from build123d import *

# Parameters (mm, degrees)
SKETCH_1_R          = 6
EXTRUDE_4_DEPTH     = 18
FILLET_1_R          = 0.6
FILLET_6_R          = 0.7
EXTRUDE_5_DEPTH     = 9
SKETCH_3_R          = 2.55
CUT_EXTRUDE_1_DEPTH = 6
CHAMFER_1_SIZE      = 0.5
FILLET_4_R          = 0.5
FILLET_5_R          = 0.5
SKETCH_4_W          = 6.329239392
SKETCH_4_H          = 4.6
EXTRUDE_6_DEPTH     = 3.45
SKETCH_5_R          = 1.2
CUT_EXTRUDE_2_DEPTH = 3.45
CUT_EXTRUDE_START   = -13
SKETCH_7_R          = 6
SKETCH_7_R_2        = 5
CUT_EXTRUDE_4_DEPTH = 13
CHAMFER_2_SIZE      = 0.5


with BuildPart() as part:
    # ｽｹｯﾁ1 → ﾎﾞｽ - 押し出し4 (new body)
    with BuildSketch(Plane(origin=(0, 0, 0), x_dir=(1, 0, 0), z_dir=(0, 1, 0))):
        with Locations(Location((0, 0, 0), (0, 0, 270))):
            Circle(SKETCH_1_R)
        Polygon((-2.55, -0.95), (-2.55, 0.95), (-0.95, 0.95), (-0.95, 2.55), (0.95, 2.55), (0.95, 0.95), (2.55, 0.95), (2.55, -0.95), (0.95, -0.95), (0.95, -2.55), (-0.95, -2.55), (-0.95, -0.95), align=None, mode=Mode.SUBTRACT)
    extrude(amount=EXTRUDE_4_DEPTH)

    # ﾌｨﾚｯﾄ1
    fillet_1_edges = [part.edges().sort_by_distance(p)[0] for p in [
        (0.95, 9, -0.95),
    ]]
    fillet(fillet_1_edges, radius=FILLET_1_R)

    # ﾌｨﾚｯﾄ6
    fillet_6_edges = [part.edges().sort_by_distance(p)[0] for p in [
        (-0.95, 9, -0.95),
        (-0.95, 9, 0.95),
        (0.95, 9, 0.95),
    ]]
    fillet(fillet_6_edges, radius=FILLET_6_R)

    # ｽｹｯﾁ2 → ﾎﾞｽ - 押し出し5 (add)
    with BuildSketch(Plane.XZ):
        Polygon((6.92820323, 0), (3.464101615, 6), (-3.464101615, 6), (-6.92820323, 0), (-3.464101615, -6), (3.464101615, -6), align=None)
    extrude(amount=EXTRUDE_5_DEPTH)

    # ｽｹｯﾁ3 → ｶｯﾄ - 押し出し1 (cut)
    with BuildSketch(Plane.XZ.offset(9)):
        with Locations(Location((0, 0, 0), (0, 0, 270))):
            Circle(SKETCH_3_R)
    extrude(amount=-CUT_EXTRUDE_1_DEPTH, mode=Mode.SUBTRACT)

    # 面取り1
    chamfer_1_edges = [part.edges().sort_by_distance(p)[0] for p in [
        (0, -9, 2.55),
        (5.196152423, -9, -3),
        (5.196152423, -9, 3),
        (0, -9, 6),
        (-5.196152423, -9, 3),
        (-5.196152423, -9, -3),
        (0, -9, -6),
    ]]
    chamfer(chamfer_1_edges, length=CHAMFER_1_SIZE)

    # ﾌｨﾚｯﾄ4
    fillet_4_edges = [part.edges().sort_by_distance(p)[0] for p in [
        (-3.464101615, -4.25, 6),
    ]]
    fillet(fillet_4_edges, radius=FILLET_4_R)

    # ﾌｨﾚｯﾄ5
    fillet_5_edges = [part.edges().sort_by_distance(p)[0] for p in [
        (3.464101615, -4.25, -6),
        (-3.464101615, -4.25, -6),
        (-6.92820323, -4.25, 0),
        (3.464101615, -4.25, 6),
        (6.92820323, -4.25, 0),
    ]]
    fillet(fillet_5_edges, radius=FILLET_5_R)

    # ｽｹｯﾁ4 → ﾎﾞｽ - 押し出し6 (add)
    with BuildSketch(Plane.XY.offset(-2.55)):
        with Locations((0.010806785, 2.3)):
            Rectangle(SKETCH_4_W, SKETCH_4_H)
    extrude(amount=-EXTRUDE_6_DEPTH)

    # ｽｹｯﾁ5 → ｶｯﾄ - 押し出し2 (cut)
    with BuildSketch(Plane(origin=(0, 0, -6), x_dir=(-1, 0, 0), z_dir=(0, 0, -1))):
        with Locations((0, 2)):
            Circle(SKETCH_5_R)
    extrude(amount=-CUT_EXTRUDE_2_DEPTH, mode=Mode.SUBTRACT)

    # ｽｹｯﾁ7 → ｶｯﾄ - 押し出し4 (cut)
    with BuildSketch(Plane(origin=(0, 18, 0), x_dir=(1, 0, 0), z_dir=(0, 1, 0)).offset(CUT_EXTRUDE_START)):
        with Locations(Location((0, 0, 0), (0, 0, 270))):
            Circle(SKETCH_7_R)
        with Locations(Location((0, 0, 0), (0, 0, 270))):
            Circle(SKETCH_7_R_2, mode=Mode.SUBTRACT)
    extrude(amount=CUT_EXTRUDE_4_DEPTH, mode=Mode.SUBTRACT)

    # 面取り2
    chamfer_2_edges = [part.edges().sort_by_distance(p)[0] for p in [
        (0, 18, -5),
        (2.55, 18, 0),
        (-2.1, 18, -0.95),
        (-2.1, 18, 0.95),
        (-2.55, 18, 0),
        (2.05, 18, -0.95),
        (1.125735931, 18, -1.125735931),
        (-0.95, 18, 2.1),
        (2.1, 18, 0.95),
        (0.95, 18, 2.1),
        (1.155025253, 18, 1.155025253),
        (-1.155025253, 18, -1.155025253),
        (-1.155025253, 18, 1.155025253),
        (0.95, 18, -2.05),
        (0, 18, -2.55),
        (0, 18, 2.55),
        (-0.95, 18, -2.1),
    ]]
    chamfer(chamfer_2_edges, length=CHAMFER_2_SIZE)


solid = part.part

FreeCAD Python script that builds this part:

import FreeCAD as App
import Part
import Sketcher
from FreeCAD import Vector
Q = App.Units.Quantity


def edges_at(feature, points):
    """Names of the edges that pass closest to the given points."""
    edges = feature.Shape.Edges
    near = lambda p: min(range(len(edges)), key=lambda i: edges[i].distToShape(Part.Vertex(*p))[0])
    return sorted({f"Edge{near(p) + 1}" for p in points})

doc = App.newDocument("Part")
body = doc.addObject("PartDesign::Body", "Body")

# Sketch on XZ plane
sketch1 = doc.addObject("Sketcher::SketchObject", "Sketch")
body.addObject(sketch1)
sketch1.AttachmentSupport = (doc.XZ_Plane, [""])
sketch1.MapMode = "FlatFace"
sketch1.addGeometry([
    Part.Circle(Vector(0, 0, 0), Vector(0, 0, 1), 6),  # 0
    Part.LineSegment(Vector(-0.9, 0.9, 0), Vector(-2.5, 0.9, 0)),  # 1
    Part.LineSegment(Vector(-2.5, 0.9, 0), Vector(-2.5, -0.9, 0)),  # 2
    Part.LineSegment(Vector(-2.5, -0.9, 0), Vector(-0.9, -0.9, 0)),  # 3
    Part.LineSegment(Vector(-0.9, -0.9, 0), Vector(-0.9, -2.5, 0)),  # 4
    Part.LineSegment(Vector(-0.9, -2.5, 0), Vector(0.9, -2.5, 0)),  # 5
    Part.LineSegment(Vector(0.9, -2.5, 0), Vector(0.9, -0.9, 0)),  # 6
    Part.LineSegment(Vector(0.9, -0.9, 0), Vector(2.5, -0.9, 0)),  # 7
    Part.LineSegment(Vector(2.5, -0.9, 0), Vector(2.5, 0.9, 0)),  # 8
    Part.LineSegment(Vector(2.5, 0.9, 0), Vector(0.9, 0.9, 0)),  # 9
    Part.LineSegment(Vector(0.9, 0.9, 0), Vector(0.9, 2.5, 0)),  # 10
    Part.LineSegment(Vector(0.9, 2.5, 0), Vector(-0.9, 2.5, 0)),  # 11
    Part.LineSegment(Vector(-0.9, 2.5, 0), Vector(-0.9, 0.9, 0)),  # 12
], False)
sketch1.addConstraint([
    Sketcher.Constraint("Coincident", 1, 2, 2, 1),
    Sketcher.Constraint("Coincident", 2, 2, 3, 1),
    Sketcher.Constraint("Coincident", 3, 2, 4, 1),
    Sketcher.Constraint("Coincident", 4, 2, 5, 1),
    Sketcher.Constraint("Coincident", 5, 2, 6, 1),
    Sketcher.Constraint("Coincident", 6, 2, 7, 1),
    Sketcher.Constraint("Coincident", 7, 2, 8, 1),
    Sketcher.Constraint("Coincident", 8, 2, 9, 1),
    Sketcher.Constraint("Coincident", 9, 2, 10, 1),
    Sketcher.Constraint("Coincident", 10, 2, 11, 1),
    Sketcher.Constraint("Coincident", 11, 2, 12, 1),
    Sketcher.Constraint("Coincident", 12, 2, 1, 1),
    Sketcher.Constraint("Horizontal", 1),
    Sketcher.Constraint("Vertical", 2),
    Sketcher.Constraint("Horizontal", 3),
    Sketcher.Constraint("Vertical", 4),
    Sketcher.Constraint("Horizontal", 5),
    Sketcher.Constraint("Vertical", 6),
    Sketcher.Constraint("Horizontal", 7),
    Sketcher.Constraint("Vertical", 8),
    Sketcher.Constraint("Horizontal", 9),
    Sketcher.Constraint("Vertical", 10),
    Sketcher.Constraint("Horizontal", 11),
    Sketcher.Constraint("Vertical", 12),
    Sketcher.Constraint("Coincident", 0, 3, -1, 1),
    Sketcher.Constraint("Symmetric", 1, 2, 7, 2, -1, 1),
    Sketcher.Constraint("Symmetric", 3, 2, 9, 2, -1, 1),
    Sketcher.Constraint("Symmetric", 5, 2, 11, 2, -1, 1),
    Sketcher.Constraint("Symmetric", 3, 2, 6, 2, -2),
    Sketcher.Constraint("Equal", 11, 2),
    Sketcher.Constraint("Equal", 9, 4),
    Sketcher.Constraint("Diameter", 0, 12.0),
    Sketcher.Constraint("DistanceX", 1, 2, 1, 1, 1.6),
    Sketcher.Constraint("DistanceX", 5, 1, 5, 2, 1.9),
])
pad1 = doc.addObject("PartDesign::Pad", "Pad")
body.addObject(pad1)
pad1.Profile = sketch1
pad1.Length = 18
pad1.Reversed = True
doc.recompute()

fillet = doc.addObject("PartDesign::Fillet", "Fillet")
body.addObject(fillet)
fillet.Base = (pad1, edges_at(pad1, [(0.95, 9, -0.95)]))
fillet.Radius = 0.6
doc.recompute()

fillet2 = doc.addObject("PartDesign::Fillet", "Fillet001")
body.addObject(fillet2)
fillet2.Base = (fillet, edges_at(fillet, [(-0.95, 9, -0.95), (-0.95, 9, 0.95), (0.95, 9, 0.95)]))
fillet2.Radius = 0.7

# Sketch on XZ plane
sketch2 = doc.addObject("Sketcher::SketchObject", "Sketch001")
body.addObject(sketch2)
sketch2.AttachmentSupport = (doc.XZ_Plane, [""])
sketch2.MapMode = "FlatFace"
sketch2.addGeometry([
    Part.LineSegment(Vector(7, 0, 0), Vector(3, 6, 0)),  # 0
    Part.LineSegment(Vector(3, 6, 0), Vector(-3, 6, 0)),  # 1
    Part.LineSegment(Vector(-3, 6, 0), Vector(-7, 0, 0)),  # 2
    Part.LineSegment(Vector(-7, 0, 0), Vector(-3, -6, 0)),  # 3
    Part.LineSegment(Vector(-3, -6, 0), Vector(3, -6, 0)),  # 4
    Part.LineSegment(Vector(3, -6, 0), Vector(7, 0, 0)),  # 5
], False)
sketch2.addConstraint([
    Sketcher.Constraint("Coincident", 0, 2, 1, 1),
    Sketcher.Constraint("Coincident", 1, 2, 2, 1),
    Sketcher.Constraint("Coincident", 2, 2, 3, 1),
    Sketcher.Constraint("Coincident", 3, 2, 4, 1),
    Sketcher.Constraint("Coincident", 4, 2, 5, 1),
    Sketcher.Constraint("Coincident", 5, 2, 0, 1),
    Sketcher.Constraint("Horizontal", 1),
    Sketcher.Constraint("Horizontal", 4),
    Sketcher.Constraint("Symmetric", 0, 2, 3, 2, -1, 1),
    Sketcher.Constraint("Symmetric", 2, 2, 5, 2, -1, 1),
    Sketcher.Constraint("PointOnObject", 2, 2, -1),
    Sketcher.Constraint("Parallel", 2, 5),
    Sketcher.Constraint("Vertical", 1, 2, 3, 2),
    Sketcher.Constraint("Angle", 0, Q("120 deg")),
    Sketcher.Constraint("DistanceY", -1, 1, 0, 2, 6.0),
    Sketcher.Constraint("DistanceX", -1, 1, 0, 2, 3.464102),
])
pad2 = doc.addObject("PartDesign::Pad", "Pad001")
body.addObject(pad2)
pad2.Profile = sketch2
pad2.Length = 9

# Sketch on XZ plane
sketch3 = doc.addObject("Sketcher::SketchObject", "Sketch002")
body.addObject(sketch3)
sketch3.AttachmentSupport = (doc.XZ_Plane, [""])
sketch3.MapMode = "FlatFace"
sketch3.AttachmentOffset = App.Placement(Vector(0, 0, 9), App.Rotation())
sketch3.addGeometry(Part.Circle(Vector(0, 0, 0), Vector(0, 0, 1), 2.5), False)
sketch3.addConstraint([
    Sketcher.Constraint("Coincident", 0, 3, -1, 1),
    Sketcher.Constraint("Diameter", 0, 5.1),
])
pocket1 = doc.addObject("PartDesign::Pocket", "Pocket")
body.addObject(pocket1)
pocket1.Profile = sketch3
pocket1.Length = 6
doc.recompute()

chamfer = doc.addObject("PartDesign::Chamfer", "Chamfer")
body.addObject(chamfer)
chamfer.Base = (pocket1, edges_at(pocket1, [
    (0, -9, 2.55),
    (5.196, -9, -3),
    (5.196, -9, 3),
    (0, -9, 6),
    (-5.196, -9, 3),
    (-5.196, -9, -3),
    (0, -9, -6),
]))
chamfer.Size = 0.5
doc.recompute()

fillet3 = doc.addObject("PartDesign::Fillet", "Fillet002")
body.addObject(fillet3)
fillet3.Base = (chamfer, edges_at(chamfer, [(-3.464, -4.25, 6)]))
fillet3.Radius = 0.5
doc.recompute()

fillet4 = doc.addObject("PartDesign::Fillet", "Fillet003")
body.addObject(fillet4)
fillet4.Base = (fillet3, edges_at(fillet3, [
    (3.464, -4.25, -6),
    (-3.464, -4.25, -6),
    (-6.928, -4.25, 0),
    (3.464, -4.25, 6),
    (6.928, -4.25, 0),
]))
fillet4.Radius = 0.5

# Sketch on XY plane
sketch4 = doc.addObject("Sketcher::SketchObject", "Sketch003")
body.addObject(sketch4)
sketch4.AttachmentSupport = (doc.XY_Plane, [""])
sketch4.MapMode = "FlatFace"
sketch4.AttachmentOffset = App.Placement(Vector(0, 0, -2.55), App.Rotation())
sketch4.addGeometry([
    Part.LineSegment(Vector(-3.2, 4.6, 0), Vector(-3.2, 0, 0)),
    Part.LineSegment(Vector(-3.2, 0, 0), Vector(3.2, 0, 0)),
    Part.LineSegment(Vector(3.2, 0, 0), Vector(3.2, 4.6, 0)),
    Part.LineSegment(Vector(3.2, 4.6, 0), Vector(-3.2, 4.6, 0)),
], False)
sketch4.addConstraint([
    Sketcher.Constraint("Coincident", 0, 2, 1, 1),
    Sketcher.Constraint("Coincident", 1, 2, 2, 1),
    Sketcher.Constraint("Coincident", 2, 2, 3, 1),
    Sketcher.Constraint("Coincident", 3, 2, 0, 1),
    Sketcher.Constraint("Vertical", 0),
    Sketcher.Constraint("Horizontal", 1),
    Sketcher.Constraint("Vertical", 2),
    Sketcher.Constraint("Horizontal", 3),
    Sketcher.Constraint("PointOnObject", 0, 2, -1),
    Sketcher.Constraint("DistanceY", 0, 2, 0, 1, 4.6),
    Sketcher.Constraint("DistanceX", 1, 1, 1, 2, 6.329239),
    Sketcher.Constraint("DistanceX", 0, 2, -1, 1, 3.153813),
])
pad3 = doc.addObject("PartDesign::Pad", "Pad002")
body.addObject(pad3)
pad3.Profile = sketch4
pad3.Length = 3.45
pad3.Reversed = True

# Sketch on XY plane
sketch5 = doc.addObject("Sketcher::SketchObject", "Sketch004")
body.addObject(sketch5)
sketch5.AttachmentSupport = (doc.XY_Plane, [""])
sketch5.MapMode = "FlatFace"
sketch5.AttachmentOffset = App.Placement(Vector(0, 0, -6), App.Rotation())
sketch5.addGeometry(Part.Circle(Vector(0, 2, 0), Vector(0, 0, 1), 1.2), False)
sketch5.addConstraint([
    Sketcher.Constraint("PointOnObject", 0, 3, -2),
    Sketcher.Constraint("Diameter", 0, 2.4),
    Sketcher.Constraint("DistanceY", -1, 1, 0, 3, 2.0),
])
pocket2 = doc.addObject("PartDesign::Pocket", "Pocket001")
body.addObject(pocket2)
pocket2.Profile = sketch5
pocket2.Length = 3.45
pocket2.Reversed = True

# Sketch on XZ plane
sketch6 = doc.addObject("Sketcher::SketchObject", "Sketch005")
body.addObject(sketch6)
sketch6.AttachmentSupport = (doc.XZ_Plane, [""])
sketch6.MapMode = "FlatFace"
sketch6.AttachmentOffset = App.Placement(Vector(0, 0, -5), App.Rotation())
sketch6.addGeometry([
    Part.Circle(Vector(0, 0, 0), Vector(0, 0, 1), 6),
    Part.Circle(Vector(0, 0, 0), Vector(0, 0, 1), 5),
], False)
sketch6.addConstraint([
    Sketcher.Constraint("Coincident", 0, 3, -1, 1),
    Sketcher.Constraint("Coincident", 1, 3, -1, 1),
    Sketcher.Constraint("Diameter", 0, 12.0),
    Sketcher.Constraint("Diameter", 1, 10.0),
])
pocket3 = doc.addObject("PartDesign::Pocket", "Pocket002")
body.addObject(pocket3)
pocket3.Profile = sketch6
pocket3.Length = 13
doc.recompute()

chamfer2 = doc.addObject("PartDesign::Chamfer", "Chamfer001")
body.addObject(chamfer2)
chamfer2.Base = (pocket3, edges_at(pocket3, [
    (0, 18, -5),
    (2.55, 18, 0),
    (-2.1, 18, -0.95),
    (-2.1, 18, 0.95),
    (-2.55, 18, 0),
    (2.05, 18, -0.95),
    (1.126, 18, -1.126),
    (-0.95, 18, 2.1),
    (2.1, 18, 0.95),
    (0.95, 18, 2.1),
    (1.155, 18, 1.155),
    (-1.155, 18, -1.155),
    (-1.155, 18, 1.155),
    (0.95, 18, -2.05),
    (0, 18, -2.55),
    (0, 18, 2.55),
    (-0.95, 18, -2.1),
]))
chamfer2.Size = 0.5

doc.recompute()
